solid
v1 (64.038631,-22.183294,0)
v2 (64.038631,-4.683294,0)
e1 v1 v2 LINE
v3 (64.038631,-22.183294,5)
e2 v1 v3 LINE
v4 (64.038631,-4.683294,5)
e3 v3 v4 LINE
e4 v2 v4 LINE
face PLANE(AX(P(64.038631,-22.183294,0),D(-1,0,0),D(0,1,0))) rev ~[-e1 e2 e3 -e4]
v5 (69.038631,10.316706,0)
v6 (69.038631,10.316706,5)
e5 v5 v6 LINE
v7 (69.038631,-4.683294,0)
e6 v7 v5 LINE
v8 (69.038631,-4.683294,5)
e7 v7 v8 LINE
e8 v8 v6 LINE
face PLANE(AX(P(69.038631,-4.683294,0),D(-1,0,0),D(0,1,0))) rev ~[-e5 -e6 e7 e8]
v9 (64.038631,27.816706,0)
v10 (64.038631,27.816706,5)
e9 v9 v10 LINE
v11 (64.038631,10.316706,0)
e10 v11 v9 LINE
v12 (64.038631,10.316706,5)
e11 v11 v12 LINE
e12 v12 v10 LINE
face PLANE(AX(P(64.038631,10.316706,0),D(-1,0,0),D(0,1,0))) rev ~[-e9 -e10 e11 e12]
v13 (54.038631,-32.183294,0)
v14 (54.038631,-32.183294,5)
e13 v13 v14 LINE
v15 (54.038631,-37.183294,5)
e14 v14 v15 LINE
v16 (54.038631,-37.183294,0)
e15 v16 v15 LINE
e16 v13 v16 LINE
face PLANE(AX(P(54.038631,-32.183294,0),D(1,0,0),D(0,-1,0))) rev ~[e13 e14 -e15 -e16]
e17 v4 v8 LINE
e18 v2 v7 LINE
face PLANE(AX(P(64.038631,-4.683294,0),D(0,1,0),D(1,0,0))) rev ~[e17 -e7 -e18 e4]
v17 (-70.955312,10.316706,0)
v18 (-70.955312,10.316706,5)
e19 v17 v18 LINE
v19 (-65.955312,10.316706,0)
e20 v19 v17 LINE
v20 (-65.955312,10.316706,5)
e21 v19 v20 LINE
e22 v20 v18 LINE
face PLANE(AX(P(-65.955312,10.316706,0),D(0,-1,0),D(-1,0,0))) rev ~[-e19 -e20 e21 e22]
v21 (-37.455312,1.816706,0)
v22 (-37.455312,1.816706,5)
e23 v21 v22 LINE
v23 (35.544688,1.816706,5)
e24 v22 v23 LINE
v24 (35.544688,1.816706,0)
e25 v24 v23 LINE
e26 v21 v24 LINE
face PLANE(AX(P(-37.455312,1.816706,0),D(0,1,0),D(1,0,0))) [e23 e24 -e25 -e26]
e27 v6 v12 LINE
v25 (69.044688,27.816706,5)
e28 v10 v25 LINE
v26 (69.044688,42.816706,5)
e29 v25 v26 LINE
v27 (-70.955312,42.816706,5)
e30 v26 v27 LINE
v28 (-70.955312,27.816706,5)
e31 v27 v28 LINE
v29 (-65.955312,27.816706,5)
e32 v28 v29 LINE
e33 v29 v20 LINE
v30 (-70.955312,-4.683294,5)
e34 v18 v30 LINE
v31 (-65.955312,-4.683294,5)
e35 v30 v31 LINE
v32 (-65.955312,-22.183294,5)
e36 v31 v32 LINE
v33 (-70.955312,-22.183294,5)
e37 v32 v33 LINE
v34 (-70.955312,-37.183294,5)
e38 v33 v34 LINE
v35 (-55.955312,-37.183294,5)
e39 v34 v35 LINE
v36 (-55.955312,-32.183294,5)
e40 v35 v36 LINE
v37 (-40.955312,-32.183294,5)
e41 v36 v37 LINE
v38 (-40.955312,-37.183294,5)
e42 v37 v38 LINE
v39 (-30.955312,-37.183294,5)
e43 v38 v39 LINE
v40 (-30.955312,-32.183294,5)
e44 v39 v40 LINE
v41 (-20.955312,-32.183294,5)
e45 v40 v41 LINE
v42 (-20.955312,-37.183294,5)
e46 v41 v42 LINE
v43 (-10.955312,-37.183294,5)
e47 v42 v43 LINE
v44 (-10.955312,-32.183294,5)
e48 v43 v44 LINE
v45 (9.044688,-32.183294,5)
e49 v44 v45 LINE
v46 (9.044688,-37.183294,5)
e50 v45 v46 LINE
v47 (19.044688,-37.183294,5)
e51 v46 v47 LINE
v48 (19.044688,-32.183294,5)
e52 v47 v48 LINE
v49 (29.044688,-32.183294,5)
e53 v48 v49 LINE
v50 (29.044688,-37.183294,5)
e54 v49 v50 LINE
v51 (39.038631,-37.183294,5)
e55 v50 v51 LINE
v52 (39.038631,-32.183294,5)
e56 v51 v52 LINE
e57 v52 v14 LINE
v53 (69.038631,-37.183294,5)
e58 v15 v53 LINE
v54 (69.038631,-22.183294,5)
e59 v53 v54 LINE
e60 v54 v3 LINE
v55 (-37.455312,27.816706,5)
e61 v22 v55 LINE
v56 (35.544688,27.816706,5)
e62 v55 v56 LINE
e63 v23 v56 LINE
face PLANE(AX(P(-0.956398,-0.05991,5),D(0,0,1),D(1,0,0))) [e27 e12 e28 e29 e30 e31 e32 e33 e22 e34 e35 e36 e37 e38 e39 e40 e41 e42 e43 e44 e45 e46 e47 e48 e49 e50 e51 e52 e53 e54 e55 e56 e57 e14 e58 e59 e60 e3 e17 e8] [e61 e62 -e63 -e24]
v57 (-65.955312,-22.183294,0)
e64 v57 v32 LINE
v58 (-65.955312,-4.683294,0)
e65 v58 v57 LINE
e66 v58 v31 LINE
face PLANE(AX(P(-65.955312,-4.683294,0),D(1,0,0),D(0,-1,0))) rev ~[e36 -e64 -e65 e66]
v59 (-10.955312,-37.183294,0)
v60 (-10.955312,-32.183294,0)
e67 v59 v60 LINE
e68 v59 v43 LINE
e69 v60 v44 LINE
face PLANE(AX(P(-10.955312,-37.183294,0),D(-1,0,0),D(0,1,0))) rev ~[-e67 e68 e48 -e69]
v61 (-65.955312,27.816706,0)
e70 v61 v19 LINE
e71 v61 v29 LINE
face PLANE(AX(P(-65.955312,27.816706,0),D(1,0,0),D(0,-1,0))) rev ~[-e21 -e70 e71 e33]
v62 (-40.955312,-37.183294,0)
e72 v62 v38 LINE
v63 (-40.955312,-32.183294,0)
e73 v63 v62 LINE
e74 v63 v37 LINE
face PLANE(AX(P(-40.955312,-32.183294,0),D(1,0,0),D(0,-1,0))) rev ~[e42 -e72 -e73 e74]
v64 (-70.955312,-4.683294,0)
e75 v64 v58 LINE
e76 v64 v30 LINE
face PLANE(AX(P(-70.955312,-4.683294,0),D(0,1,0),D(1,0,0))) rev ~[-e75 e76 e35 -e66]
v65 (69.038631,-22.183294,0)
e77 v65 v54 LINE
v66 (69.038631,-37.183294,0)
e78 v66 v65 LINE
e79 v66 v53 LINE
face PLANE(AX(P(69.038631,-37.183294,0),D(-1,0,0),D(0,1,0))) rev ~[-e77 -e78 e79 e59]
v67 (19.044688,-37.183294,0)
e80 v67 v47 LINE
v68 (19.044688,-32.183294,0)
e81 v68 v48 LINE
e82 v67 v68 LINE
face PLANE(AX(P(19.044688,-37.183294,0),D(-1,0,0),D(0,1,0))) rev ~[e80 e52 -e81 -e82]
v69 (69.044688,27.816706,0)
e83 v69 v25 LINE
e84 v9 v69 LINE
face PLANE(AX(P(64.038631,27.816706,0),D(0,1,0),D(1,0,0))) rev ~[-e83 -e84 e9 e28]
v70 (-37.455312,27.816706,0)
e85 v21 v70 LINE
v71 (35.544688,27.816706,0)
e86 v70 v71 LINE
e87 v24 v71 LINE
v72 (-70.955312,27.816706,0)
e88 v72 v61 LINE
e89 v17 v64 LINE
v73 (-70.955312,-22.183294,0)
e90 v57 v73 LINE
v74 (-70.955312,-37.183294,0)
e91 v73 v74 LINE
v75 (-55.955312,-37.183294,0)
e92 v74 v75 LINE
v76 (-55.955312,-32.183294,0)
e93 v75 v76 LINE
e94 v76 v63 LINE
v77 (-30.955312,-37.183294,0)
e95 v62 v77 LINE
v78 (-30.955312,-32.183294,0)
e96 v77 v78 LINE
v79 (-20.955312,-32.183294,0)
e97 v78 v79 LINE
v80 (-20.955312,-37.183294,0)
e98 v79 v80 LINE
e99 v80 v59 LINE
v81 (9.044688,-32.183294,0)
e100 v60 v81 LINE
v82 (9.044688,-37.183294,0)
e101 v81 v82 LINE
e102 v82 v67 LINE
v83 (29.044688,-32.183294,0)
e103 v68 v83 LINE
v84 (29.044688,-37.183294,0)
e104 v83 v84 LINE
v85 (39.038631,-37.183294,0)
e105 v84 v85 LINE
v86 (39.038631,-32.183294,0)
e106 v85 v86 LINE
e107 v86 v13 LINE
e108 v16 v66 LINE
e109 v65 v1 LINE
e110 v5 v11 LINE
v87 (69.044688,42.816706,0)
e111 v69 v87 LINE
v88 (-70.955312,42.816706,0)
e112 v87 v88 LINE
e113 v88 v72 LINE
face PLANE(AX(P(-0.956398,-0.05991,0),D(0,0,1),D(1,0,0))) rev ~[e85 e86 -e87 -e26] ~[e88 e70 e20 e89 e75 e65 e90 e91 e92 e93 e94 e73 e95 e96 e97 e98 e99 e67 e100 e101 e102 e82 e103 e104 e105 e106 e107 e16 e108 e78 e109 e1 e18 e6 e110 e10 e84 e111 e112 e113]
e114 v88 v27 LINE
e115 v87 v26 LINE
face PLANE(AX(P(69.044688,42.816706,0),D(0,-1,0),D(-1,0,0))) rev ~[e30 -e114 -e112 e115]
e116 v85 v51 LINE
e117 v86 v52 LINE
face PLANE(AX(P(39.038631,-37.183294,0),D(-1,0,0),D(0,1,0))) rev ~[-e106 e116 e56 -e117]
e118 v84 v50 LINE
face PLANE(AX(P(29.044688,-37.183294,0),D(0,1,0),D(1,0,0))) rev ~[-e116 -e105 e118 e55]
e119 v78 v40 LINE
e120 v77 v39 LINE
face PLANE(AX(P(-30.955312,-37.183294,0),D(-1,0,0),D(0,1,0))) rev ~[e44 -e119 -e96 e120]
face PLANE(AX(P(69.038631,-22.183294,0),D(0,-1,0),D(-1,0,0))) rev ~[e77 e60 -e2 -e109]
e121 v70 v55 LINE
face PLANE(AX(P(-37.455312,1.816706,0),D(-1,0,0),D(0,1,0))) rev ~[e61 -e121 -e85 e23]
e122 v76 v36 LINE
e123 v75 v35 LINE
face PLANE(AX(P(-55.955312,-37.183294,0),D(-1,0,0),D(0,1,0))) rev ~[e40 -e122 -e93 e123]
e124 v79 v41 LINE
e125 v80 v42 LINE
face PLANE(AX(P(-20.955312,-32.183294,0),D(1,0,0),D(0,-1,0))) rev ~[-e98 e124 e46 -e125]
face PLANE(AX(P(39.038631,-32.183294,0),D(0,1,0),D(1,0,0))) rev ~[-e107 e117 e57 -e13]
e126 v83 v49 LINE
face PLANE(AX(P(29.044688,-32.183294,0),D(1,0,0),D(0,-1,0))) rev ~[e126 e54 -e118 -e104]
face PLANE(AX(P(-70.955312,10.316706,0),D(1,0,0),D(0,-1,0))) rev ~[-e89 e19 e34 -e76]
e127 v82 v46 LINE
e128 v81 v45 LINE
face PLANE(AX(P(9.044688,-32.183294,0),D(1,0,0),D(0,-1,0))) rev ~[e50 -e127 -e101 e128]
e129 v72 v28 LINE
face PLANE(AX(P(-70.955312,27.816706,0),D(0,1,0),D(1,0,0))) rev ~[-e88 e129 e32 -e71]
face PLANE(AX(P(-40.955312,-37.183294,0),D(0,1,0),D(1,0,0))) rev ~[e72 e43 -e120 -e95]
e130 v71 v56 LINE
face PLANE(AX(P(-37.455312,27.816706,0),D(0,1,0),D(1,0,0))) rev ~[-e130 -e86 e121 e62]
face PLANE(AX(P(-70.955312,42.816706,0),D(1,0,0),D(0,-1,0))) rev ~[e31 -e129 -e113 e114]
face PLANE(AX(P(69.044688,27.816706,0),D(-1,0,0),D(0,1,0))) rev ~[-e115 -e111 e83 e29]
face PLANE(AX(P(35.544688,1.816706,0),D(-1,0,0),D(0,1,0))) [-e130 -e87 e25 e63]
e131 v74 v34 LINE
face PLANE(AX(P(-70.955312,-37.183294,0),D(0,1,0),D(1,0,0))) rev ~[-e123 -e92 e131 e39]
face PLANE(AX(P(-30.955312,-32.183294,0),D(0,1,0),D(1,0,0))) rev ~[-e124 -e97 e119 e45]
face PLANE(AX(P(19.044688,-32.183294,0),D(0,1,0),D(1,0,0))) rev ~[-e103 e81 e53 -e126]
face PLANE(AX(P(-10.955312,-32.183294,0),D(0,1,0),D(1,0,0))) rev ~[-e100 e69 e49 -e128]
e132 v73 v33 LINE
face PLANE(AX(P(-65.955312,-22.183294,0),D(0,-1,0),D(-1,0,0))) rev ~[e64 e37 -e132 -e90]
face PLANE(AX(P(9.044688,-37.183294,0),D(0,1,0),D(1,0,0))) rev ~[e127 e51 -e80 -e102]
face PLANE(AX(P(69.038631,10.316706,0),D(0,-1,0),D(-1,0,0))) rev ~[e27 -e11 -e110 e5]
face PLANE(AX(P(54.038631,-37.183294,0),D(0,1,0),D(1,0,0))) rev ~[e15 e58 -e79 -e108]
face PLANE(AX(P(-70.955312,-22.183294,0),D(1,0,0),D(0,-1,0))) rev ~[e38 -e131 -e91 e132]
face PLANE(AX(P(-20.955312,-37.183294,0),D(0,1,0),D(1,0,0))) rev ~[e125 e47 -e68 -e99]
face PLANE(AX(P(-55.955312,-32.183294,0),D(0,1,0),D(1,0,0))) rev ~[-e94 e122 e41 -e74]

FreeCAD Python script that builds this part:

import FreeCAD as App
import Part
import Sketcher
from FreeCAD import Vector


def add_polygon(sketch, points):
    """Adds a closed chain of lines whose ends are joined by coincident constraints."""
    first, n = sketch.GeometryCount, len(points)
    for a, b in zip(points, points[1:] + points[:1]):
        sketch.addGeometry(Part.LineSegment(App.Vector(*a, 0), App.Vector(*b, 0)), False)
    for i in range(n):
        sketch.addConstraint(Sketcher.Constraint("Coincident", first + i, 2, first + (i + 1) % n, 1))

doc = App.newDocument("Part")
params = doc.addObject("Spreadsheet::Sheet", "Params")
for row, (alias, value) in enumerate([
    ("sketch1_width", "5 mm"),
    ("sketch1_width2", "140 mm"),
    ("sketch1_width3", "15 mm"),
    ("sketch1_width4", "10 mm"),
    ("sketch1_width5", "20 mm"),
    ("pad1_length", "5 mm"),
], start=1):
    params.set(f"A{row}", alias)
    params.set(f"B{row}", "=" + value)
    params.setAlias(f"B{row}", alias)

body = doc.addObject("PartDesign::Body", "Body")

# Sketch on XY plane
sketch1 = body.newObject("Sketcher::SketchObject", "Sketch")
sketch1.AttachmentSupport = (doc.getObject("XY_Plane"), [""])
sketch1.MapMode = "FlatFace"
add_polygon(sketch1, [(64, -5), (69, -5), (69, 10), (64, 10), (64, 28), (69, 28), (69, 43), (-71, 43), (-71, 28), (-66, 28), (-66, 10), (-71, 10), (-71, -5), (-66, -5), (-66, -22), (-71, -22), (-71, -37), (-56, -37), (-56, -32), (-41, -32), (-41, -37), (-31, -37), (-31, -32), (-21, -32), (-21, -37), (-11, -37), (-11, -32), (9, -32), (9, -37), (19, -37), (19, -32), (29, -32), (29, -37), (39, -37), (39, -32), (54, -32), (54, -37), (69, -37), (69, -22), (64, -22)])  # lines 0-39
add_polygon(sketch1, [(36, 2), (-37, 2), (-37, 28), (36, 28)])  # lines 40-43
sketch1.addConstraint(Sketcher.Constraint("Horizontal", 0))
sketch1.addConstraint(Sketcher.Constraint("Vertical", 1))
sketch1.addConstraint(Sketcher.Constraint("Horizontal", 2))
sketch1.addConstraint(Sketcher.Constraint("Vertical", 3))
sketch1.addConstraint(Sketcher.Constraint("Horizontal", 4))
sketch1.addConstraint(Sketcher.Constraint("Vertical", 5))
sketch1.addConstraint(Sketcher.Constraint("Horizontal", 6))
sketch1.addConstraint(Sketcher.Constraint("Vertical", 7))
sketch1.addConstraint(Sketcher.Constraint("Horizontal", 8))
sketch1.addConstraint(Sketcher.Constraint("Vertical", 9))
sketch1.addConstraint(Sketcher.Constraint("Horizontal", 10))
sketch1.addConstraint(Sketcher.Constraint("Vertical", 11))
sketch1.addConstraint(Sketcher.Constraint("Horizontal", 12))
sketch1.addConstraint(Sketcher.Constraint("Vertical", 13))
sketch1.addConstraint(Sketcher.Constraint("Horizontal", 14))
sketch1.addConstraint(Sketcher.Constraint("Vertical", 15))
sketch1.addConstraint(Sketcher.Constraint("Horizontal", 16))
sketch1.addConstraint(Sketcher.Constraint("Vertical", 17))
sketch1.addConstraint(Sketcher.Constraint("Horizontal", 18))
sketch1.addConstraint(Sketcher.Constraint("Vertical", 19))
sketch1.addConstraint(Sketcher.Constraint("Horizontal", 20))
sketch1.addConstraint(Sketcher.Constraint("Vertical", 21))
sketch1.addConstraint(Sketcher.Constraint("Horizontal", 22))
sketch1.addConstraint(Sketcher.Constraint("Vertical", 23))
sketch1.addConstraint(Sketcher.Constraint("Horizontal", 24))
sketch1.addConstraint(Sketcher.Constraint("Vertical", 25))
sketch1.addConstraint(Sketcher.Constraint("Horizontal", 26))
sketch1.addConstraint(Sketcher.Constraint("Vertical", 27))
sketch1.addConstraint(Sketcher.Constraint("Horizontal", 28))
sketch1.addConstraint(Sketcher.Constraint("Vertical", 29))
sketch1.addConstraint(Sketcher.Constraint("Horizontal", 30))
sketch1.addConstraint(Sketcher.Constraint("Vertical", 31))
sketch1.addConstraint(Sketcher.Constraint("Horizontal", 32))
sketch1.addConstraint(Sketcher.Constraint("Vertical", 33))
sketch1.addConstraint(Sketcher.Constraint("Horizontal", 34))
sketch1.addConstraint(Sketcher.Constraint("Vertical", 35))
sketch1.addConstraint(Sketcher.Constraint("Horizontal", 36))
sketch1.addConstraint(Sketcher.Constraint("Vertical", 37))
sketch1.addConstraint(Sketcher.Constraint("Horizontal", 38))
sketch1.addConstraint(Sketcher.Constraint("Vertical", 39))
sketch1.addConstraint(Sketcher.Constraint("Horizontal", 40))
sketch1.addConstraint(Sketcher.Constraint("Vertical", 41))
sketch1.addConstraint(Sketcher.Constraint("Horizontal", 42))
sketch1.addConstraint(Sketcher.Constraint("Vertical", 43))
sketch1.addConstraint(Sketcher.Constraint("Horizontal", 4, 2, 7, 2))
sketch1.addConstraint(Sketcher.Constraint("Horizontal", 2, 2, 9, 2))
sketch1.addConstraint(Sketcher.Constraint("Horizontal", 0, 2, 11, 2))
sketch1.addConstraint(Sketcher.Constraint("Horizontal", 16, 2, 19, 2))
sketch1.addConstraint(Sketcher.Constraint("Horizontal", 18, 2, 21, 2))
sketch1.addConstraint(Sketcher.Constraint("Horizontal", 20, 2, 23, 2))
sketch1.addConstraint(Sketcher.Constraint("Horizontal", 22, 2, 25, 2))
sketch1.addConstraint(Sketcher.Constraint("Horizontal", 24, 2, 27, 2))
sketch1.addConstraint(Sketcher.Constraint("Horizontal", 26, 2, 29, 2))
sketch1.addConstraint(Sketcher.Constraint("Horizontal", 28, 2, 31, 2))
sketch1.addConstraint(Sketcher.Constraint("Horizontal", 30, 2, 33, 2))
sketch1.addConstraint(Sketcher.Constraint("Horizontal", 32, 2, 35, 2))
sketch1.addConstraint(Sketcher.Constraint("Horizontal", 14, 2, 37, 2))
sketch1.addConstraint(Sketcher.Constraint("Horizontal", 8, 2, 41, 2))
sketch1.addConstraint(Sketcher.Constraint("Vertical", 7, 2, 10, 2))
sketch1.addConstraint(Sketcher.Constraint("Vertical", 9, 2, 12, 2))
sketch1.addConstraint(Sketcher.Constraint("Vertical", 11, 2, 14, 2))
sketch1.addConstraint(Sketcher.Constraint("Vertical", 1, 2, 36, 2))
sketch1.addConstraint(Sketcher.Constraint("Vertical", 3, 2, 38, 2))
sketch1.addConstraint(Sketcher.Constraint("Equal", 2, 8))
sketch1.addConstraint(Sketcher.Constraint("Equal", 16, 18))
sketch1.addConstraint(Sketcher.Constraint("Equal", 20, 22))
sketch1.addConstraint(Sketcher.Constraint("Equal", 22, 24))
sketch1.addConstraint(Sketcher.Constraint("Equal", 24, 28))
sketch1.addConstraint(Sketcher.Constraint("Equal", 28, 30))
sketch1.addConstraint(Sketcher.Constraint("Equal", 18, 34))
sketch1.addConstraint(Sketcher.Constraint("Equal", 34, 36))
sketch1.addConstraint(Sketcher.Constraint("Equal", 36, 1))
sketch1.addConstraint(Sketcher.Constraint("Equal", 1, 5))
sketch1.addConstraint(Sketcher.Constraint("Equal", 9, 13))
sketch1.addConstraint(Sketcher.Constraint("Equal", 11, 15))
sketch1.addConstraint(Sketcher.Constraint("Equal", 38, 17))
sketch1.addConstraint(Sketcher.Constraint("DistanceX", 0, 1, 0, 2, 5.0))
sketch1.addConstraint(Sketcher.Constraint("DistanceX", 6, 2, 6, 1, 140.0))
sketch1.addConstraint(Sketcher.Constraint("DistanceX", 16, 1, 16, 2, 15.0))
sketch1.addConstraint(Sketcher.Constraint("DistanceX", 20, 1, 20, 2, 10.0))
sketch1.addConstraint(Sketcher.Constraint("DistanceX", 26, 1, 26, 2, 20.0))
sketch1.addConstraint(Sketcher.Constraint("DistanceX", 40, 2, 40, 1, 73.0))
sketch1.addConstraint(Sketcher.Constraint("DistanceY", 41, 1, 41, 2, 26.0))
sketch1.addConstraint(Sketcher.Constraint("DistanceY", 3, 1, 3, 2, 17.5))
sketch1.addConstraint(Sketcher.Constraint("DistanceX", 12, 2, 40, 2, 28.5))
sketch1.addConstraint(Sketcher.Constraint("DistanceX", 4, 1, 4, 2, 5.006057))
sketch1.addConstraint(Sketcher.Constraint("DistanceX", -1, 1, 0, 2, 69.038631))
sketch1.addConstraint(Sketcher.Constraint("DistanceY", 0, 2, -1, 1, 4.683294))
sketch1.setExpression("Constraints[120]", "Params.sketch1_width")
sketch1.setExpression("Constraints[121]", "Params.sketch1_width2")
sketch1.setExpression("Constraints[122]", "Params.sketch1_width3")
sketch1.setExpression("Constraints[123]", "Params.sketch1_width4")
sketch1.setExpression("Constraints[124]", "Params.sketch1_width5")
pad1 = body.newObject("PartDesign::Pad", "Pad")
pad1.Profile = sketch1
pad1.setExpression("Length", "Params.pad1_length")

doc.recompute()
